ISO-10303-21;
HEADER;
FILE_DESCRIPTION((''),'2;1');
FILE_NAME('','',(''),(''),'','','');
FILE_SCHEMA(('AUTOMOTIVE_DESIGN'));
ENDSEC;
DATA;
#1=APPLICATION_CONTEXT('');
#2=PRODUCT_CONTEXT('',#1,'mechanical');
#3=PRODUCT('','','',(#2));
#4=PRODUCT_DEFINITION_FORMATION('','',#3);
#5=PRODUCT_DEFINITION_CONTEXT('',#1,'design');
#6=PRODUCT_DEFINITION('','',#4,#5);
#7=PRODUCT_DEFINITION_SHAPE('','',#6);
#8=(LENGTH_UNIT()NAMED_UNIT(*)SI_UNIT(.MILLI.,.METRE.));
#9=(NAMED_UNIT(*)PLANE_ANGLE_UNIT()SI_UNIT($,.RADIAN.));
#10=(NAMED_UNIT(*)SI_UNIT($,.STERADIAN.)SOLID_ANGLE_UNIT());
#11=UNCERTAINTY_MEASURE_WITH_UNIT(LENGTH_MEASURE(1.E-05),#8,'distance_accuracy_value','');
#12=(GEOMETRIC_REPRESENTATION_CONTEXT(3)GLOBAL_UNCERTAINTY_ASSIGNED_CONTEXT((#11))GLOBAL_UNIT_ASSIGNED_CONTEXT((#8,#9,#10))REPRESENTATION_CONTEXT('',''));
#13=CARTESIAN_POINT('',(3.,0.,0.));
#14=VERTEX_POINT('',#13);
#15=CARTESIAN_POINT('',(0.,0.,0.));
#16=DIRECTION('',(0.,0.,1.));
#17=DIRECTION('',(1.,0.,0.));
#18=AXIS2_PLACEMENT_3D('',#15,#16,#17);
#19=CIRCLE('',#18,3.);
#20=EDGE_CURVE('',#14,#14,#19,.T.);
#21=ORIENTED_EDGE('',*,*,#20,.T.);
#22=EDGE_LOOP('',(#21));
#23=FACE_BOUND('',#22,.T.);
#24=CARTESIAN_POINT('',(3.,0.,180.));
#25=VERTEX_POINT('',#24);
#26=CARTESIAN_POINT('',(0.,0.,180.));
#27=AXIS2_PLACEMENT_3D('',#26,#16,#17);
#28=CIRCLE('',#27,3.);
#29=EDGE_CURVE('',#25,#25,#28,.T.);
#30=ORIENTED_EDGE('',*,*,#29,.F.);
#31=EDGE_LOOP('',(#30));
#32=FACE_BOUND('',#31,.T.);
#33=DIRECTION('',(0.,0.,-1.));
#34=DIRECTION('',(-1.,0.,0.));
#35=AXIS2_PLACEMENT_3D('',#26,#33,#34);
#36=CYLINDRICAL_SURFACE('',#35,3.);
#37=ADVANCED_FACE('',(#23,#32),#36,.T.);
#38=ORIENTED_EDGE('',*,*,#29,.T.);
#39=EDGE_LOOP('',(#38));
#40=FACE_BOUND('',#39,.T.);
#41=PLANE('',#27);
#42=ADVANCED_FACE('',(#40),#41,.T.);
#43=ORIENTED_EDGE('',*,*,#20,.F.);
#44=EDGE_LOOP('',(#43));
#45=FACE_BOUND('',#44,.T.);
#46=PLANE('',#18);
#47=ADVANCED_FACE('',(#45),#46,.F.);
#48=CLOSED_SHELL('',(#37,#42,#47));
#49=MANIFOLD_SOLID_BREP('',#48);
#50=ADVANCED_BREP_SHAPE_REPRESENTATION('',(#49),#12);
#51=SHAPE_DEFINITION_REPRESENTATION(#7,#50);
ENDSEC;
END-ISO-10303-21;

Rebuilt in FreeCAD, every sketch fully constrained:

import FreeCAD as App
import Part
import Sketcher

doc = App.newDocument("Part")
params = doc.addObject("Spreadsheet::Sheet", "Params")
for row, (alias, value) in enumerate([
    ("sketch1_diameter", "6 mm"),
    ("pad1_length", "180 mm"),
], start=1):
    params.set(f"A{row}", alias)
    params.set(f"B{row}", "=" + value)
    params.setAlias(f"B{row}", alias)

body = doc.addObject("PartDesign::Body", "Body")

# Sketch on XY plane
sketch1 = body.newObject("Sketcher::SketchObject", "Sketch")
sketch1.AttachmentSupport = (doc.getObject("XY_Plane"), [""])
sketch1.MapMode = "FlatFace"
sketch1.addGeometry(Part.Circle(App.Vector(0, 0, 0), App.Vector(0, 0, 1), 3), False)
sketch1.addConstraint(Sketcher.Constraint("Coincident", 0, 3, -1, 1))
sketch1.addConstraint(Sketcher.Constraint("Diameter", 0, 6.0))
sketch1.setExpression("Constraints[1]", "Params.sketch1_diameter")
pad1 = body.newObject("PartDesign::Pad", "Pad")
pad1.Profile = sketch1
pad1.setExpression("Length", "Params.pad1_length")

doc.recompute()
